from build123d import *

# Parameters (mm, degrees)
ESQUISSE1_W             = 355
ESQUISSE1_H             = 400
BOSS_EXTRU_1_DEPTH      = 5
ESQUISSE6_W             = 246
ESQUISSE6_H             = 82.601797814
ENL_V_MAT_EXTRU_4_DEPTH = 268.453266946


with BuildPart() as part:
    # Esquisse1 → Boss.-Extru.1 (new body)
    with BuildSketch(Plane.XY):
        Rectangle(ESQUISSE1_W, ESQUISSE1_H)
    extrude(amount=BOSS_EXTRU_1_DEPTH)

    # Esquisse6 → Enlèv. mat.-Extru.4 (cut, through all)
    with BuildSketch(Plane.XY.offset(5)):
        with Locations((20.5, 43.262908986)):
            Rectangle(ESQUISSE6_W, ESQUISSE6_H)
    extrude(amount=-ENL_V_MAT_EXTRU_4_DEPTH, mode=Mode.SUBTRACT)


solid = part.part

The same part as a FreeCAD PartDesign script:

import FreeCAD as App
import Part
import Sketcher
from FreeCAD import Vector
Q = App.Units.Quantity

doc = App.newDocument("Part")
body = doc.addObject("PartDesign::Body", "Body")

sketch1 = body.newObject("Sketcher::SketchObject", "Sketch")
sketch1.AttachmentSupport = (doc.getObject("XY_Plane"), [""])
sketch1.MapMode = "FlatFace"
sketch1.addGeometry(Part.LineSegment(Vector(-178, 200, 0), Vector(-178, -200, 0)), False)
sketch1.addGeometry(Part.LineSegment(Vector(-178, -200, 0), Vector(178, -200, 0)), False)
sketch1.addGeometry(Part.LineSegment(Vector(178, -200, 0), Vector(178, 200, 0)), False)
sketch1.addGeometry(Part.LineSegment(Vector(178, 200, 0), Vector(-178, 200, 0)), False)
sketch1.addConstraint(Sketcher.Constraint("Coincident", 0, 2, 1, 1))
sketch1.addConstraint(Sketcher.Constraint("Coincident", 1, 2, 2, 1))
sketch1.addConstraint(Sketcher.Constraint("Coincident", 2, 2, 3, 1))
sketch1.addConstraint(Sketcher.Constraint("Coincident", 3, 2, 0, 1))
sketch1.addConstraint(Sketcher.Constraint("Vertical", 0))
sketch1.addConstraint(Sketcher.Constraint("Horizontal", 1))
sketch1.addConstraint(Sketcher.Constraint("Vertical", 2))
sketch1.addConstraint(Sketcher.Constraint("Horizontal", 3))
sketch1.addConstraint(Sketcher.Constraint("Symmetric", 0, 2, 2, 2, -1, 1))
sketch1.addConstraint(Sketcher.Constraint("DistanceX", 1, 1, 1, 2, Q("355 mm")))
sketch1.addConstraint(Sketcher.Constraint("DistanceY", 0, 2, 0, 1, Q("400 mm")))
pad1 = body.newObject("PartDesign::Pad", "Pad")
pad1.Profile = sketch1
pad1.Length = 5

sketch2 = body.newObject("Sketcher::SketchObject", "Sketch001")
sketch2.AttachmentSupport = (doc.getObject("XY_Plane"), [""])
sketch2.MapMode = "FlatFace"
sketch2.AttachmentOffset = App.Placement(Vector(0, 0, 5), App.Rotation())
sketch2.addGeometry(Part.LineSegment(Vector(-102, 85, 0), Vector(-102, 2, 0)), False)
sketch2.addGeometry(Part.LineSegment(Vector(-102, 2, 0), Vector(144, 2, 0)), False)
sketch2.addGeometry(Part.LineSegment(Vector(144, 2, 0), Vector(144, 85, 0)), False)
sketch2.addGeometry(Part.LineSegment(Vector(144, 85, 0), Vector(-102, 85, 0)), False)
sketch2.addConstraint(Sketcher.Constraint("Coincident", 0, 2, 1, 1))
sketch2.addConstraint(Sketcher.Constraint("Coincident", 1, 2, 2, 1))
sketch2.addConstraint(Sketcher.Constraint("Coincident", 2, 2, 3, 1))
sketch2.addConstraint(Sketcher.Constraint("Coincident", 3, 2, 0, 1))
sketch2.addConstraint(Sketcher.Constraint("Vertical", 0))
sketch2.addConstraint(Sketcher.Constraint("Horizontal", 1))
sketch2.addConstraint(Sketcher.Constraint("Vertical", 2))
sketch2.addConstraint(Sketcher.Constraint("Horizontal", 3))
sketch2.addConstraint(Sketcher.Constraint("DistanceX", 1, 1, 1, 2, Q("246 mm")))
sketch2.addConstraint(Sketcher.Constraint("DistanceX", 0, 2, -1, 1, Q("102.5 mm")))
sketch2.addConstraint(Sketcher.Constraint("DistanceY", 0, 2, 0, 1, Q("82.601798 mm")))
sketch2.addConstraint(Sketcher.Constraint("DistanceY", -1, 1, 0, 2, Q("1.96201 mm")))
pocket1 = body.newObject("PartDesign::Pocket", "Pocket")
pocket1.Profile = sketch2
pocket1.Type = "ThroughAll"

doc.recompute()
